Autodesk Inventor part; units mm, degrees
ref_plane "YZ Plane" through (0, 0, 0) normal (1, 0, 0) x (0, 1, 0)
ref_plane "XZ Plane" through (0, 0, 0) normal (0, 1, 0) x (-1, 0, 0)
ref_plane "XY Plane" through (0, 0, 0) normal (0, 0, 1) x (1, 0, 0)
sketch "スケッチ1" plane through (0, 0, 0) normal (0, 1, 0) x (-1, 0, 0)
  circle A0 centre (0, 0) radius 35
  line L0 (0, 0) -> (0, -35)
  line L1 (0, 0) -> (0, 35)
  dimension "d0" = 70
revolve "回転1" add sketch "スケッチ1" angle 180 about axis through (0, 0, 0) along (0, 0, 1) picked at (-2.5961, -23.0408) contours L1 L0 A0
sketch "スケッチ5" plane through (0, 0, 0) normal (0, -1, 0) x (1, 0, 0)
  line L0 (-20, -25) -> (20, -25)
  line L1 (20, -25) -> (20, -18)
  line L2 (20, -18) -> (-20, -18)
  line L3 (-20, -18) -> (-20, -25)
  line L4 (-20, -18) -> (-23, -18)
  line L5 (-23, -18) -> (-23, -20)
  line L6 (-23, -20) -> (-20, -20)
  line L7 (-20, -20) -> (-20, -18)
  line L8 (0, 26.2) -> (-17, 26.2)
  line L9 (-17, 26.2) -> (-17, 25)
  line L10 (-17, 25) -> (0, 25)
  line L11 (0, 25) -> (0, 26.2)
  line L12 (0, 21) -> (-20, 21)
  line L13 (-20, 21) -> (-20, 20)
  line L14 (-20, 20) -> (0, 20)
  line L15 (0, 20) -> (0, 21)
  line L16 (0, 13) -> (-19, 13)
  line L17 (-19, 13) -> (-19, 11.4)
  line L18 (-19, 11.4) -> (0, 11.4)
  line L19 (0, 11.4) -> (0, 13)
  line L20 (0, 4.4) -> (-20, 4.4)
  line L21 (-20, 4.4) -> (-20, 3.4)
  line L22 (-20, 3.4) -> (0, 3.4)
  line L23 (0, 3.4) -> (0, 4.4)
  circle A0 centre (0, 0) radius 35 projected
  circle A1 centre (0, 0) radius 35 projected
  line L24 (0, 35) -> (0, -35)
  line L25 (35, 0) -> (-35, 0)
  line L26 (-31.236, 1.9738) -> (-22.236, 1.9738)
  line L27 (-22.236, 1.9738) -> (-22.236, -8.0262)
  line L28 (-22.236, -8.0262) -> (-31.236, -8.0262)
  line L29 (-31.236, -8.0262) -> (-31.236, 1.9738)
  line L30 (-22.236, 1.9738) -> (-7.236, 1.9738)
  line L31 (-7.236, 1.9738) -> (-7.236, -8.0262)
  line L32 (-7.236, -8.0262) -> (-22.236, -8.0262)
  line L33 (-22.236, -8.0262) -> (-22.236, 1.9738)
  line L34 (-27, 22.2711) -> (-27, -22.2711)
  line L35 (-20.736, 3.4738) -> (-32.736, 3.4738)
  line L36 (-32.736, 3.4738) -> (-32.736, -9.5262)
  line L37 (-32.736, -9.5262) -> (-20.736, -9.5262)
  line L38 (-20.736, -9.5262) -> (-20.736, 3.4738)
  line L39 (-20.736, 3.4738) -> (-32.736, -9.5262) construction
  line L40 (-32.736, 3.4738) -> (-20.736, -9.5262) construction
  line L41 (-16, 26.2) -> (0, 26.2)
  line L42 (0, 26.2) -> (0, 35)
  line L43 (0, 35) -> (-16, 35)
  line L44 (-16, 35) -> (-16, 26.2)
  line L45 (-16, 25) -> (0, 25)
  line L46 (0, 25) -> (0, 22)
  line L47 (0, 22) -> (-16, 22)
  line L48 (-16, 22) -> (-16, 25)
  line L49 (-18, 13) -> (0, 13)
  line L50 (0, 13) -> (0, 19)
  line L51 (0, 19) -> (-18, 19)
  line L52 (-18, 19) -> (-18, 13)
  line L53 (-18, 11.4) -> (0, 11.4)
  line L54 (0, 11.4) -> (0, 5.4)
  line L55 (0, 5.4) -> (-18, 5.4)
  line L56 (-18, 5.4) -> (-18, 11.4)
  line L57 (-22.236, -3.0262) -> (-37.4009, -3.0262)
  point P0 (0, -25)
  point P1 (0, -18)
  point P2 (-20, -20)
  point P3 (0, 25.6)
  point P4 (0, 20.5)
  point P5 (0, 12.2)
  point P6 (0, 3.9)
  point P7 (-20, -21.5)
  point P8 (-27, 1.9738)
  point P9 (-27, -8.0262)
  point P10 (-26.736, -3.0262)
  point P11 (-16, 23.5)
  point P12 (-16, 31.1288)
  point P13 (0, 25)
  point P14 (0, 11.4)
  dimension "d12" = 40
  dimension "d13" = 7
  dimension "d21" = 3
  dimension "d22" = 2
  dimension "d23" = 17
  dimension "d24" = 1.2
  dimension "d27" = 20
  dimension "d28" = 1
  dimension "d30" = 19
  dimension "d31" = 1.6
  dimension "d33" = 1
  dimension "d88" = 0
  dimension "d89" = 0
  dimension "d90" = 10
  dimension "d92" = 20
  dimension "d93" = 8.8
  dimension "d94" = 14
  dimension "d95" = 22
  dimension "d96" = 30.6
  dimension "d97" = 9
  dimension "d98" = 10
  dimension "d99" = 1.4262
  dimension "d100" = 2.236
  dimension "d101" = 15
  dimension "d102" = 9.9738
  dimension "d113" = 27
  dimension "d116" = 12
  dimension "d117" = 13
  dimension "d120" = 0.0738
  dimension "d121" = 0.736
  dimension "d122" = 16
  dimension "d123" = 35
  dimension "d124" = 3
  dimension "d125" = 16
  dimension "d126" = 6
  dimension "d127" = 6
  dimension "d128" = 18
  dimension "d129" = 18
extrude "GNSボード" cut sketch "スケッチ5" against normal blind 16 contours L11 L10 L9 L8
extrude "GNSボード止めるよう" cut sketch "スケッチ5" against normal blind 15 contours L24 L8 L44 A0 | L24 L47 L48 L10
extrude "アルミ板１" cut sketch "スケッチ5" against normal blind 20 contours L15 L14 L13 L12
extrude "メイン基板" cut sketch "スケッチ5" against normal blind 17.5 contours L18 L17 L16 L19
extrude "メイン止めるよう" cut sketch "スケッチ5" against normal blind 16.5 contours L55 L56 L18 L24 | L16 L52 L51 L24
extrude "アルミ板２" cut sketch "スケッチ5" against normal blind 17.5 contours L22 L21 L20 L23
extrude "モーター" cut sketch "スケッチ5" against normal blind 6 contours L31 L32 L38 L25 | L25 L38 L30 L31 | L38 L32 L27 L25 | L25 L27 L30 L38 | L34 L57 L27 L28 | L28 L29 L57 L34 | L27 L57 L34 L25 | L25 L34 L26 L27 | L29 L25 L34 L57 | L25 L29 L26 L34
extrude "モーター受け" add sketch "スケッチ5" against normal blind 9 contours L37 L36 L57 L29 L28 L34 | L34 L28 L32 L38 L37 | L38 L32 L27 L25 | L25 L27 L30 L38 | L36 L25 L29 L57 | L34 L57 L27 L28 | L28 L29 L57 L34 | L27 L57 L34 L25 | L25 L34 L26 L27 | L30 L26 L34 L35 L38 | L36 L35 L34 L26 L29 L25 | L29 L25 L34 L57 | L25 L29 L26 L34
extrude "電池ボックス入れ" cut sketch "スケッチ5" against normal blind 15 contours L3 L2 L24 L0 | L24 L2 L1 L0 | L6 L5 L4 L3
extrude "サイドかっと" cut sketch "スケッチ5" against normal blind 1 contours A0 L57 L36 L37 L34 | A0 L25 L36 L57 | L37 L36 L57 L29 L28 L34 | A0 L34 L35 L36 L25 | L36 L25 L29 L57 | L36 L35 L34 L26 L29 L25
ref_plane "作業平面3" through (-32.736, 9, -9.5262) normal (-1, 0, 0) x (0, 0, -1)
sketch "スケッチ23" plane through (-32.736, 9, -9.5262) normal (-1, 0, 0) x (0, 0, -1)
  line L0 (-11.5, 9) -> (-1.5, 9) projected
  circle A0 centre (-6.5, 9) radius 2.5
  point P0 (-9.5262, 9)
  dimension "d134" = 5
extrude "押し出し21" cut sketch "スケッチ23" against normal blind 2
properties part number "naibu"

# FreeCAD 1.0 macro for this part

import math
import FreeCAD as App
import Part
import Sketcher
from FreeCAD import Vector


def add_polygon(sketch, points):
    """Adds a closed chain of lines whose ends are joined by coincident constraints."""
    first, n = sketch.GeometryCount, len(points)
    for a, b in zip(points, points[1:] + points[:1]):
        sketch.addGeometry(Part.LineSegment(App.Vector(*a, 0), App.Vector(*b, 0)), False)
    for i in range(n):
        sketch.addConstraint(Sketcher.Constraint("Coincident", first + i, 2, first + (i + 1) % n, 1))

doc = App.newDocument("Part")
body = doc.addObject("PartDesign::Body", "Body")

sketch1 = body.newObject("Sketcher::SketchObject", "Sketch")
sketch1.AttachmentSupport = (doc.getObject("XZ_Plane"), [""])
sketch1.MapMode = "FlatFace"
sketch1.addGeometry([
    Part.LineSegment(Vector(0, -35, 0), Vector(0, 35, 0)),
    Part.ArcOfCircle(Part.Circle(Vector(0, 0, 0), Vector(0, 0, 1), 35), math.radians(-90), math.radians(90)),
], False)
sketch1.addConstraint([
    Sketcher.Constraint("Coincident", 0, 1, 1, 1),
    Sketcher.Constraint("Coincident", 1, 2, 0, 2),
    Sketcher.Constraint("Vertical", 0),
    Sketcher.Constraint("Coincident", 1, 3, -1, 1),
    Sketcher.Constraint("PointOnObject", 0, 1, -2),
    Sketcher.Constraint("Radius", 1, 35.0),
])
revolution = body.newObject("PartDesign::Revolution", "Revolution")
revolution.Profile = sketch1
revolution.ReferenceAxis = (sketch1, ["V_Axis"])
revolution.Angle = 180

sketch2 = body.newObject("Sketcher::SketchObject", "Sketch001")
sketch2.AttachmentSupport = (doc.getObject("XZ_Plane"), [""])
sketch2.MapMode = "FlatFace"
add_polygon(sketch2, [(0, 25), (0, 26.2), (-17, 26.2), (-17, 25)])
sketch2.addConstraint([
    Sketcher.Constraint("Vertical", 0),
    Sketcher.Constraint("Horizontal", 1),
    Sketcher.Constraint("Vertical", 2),
    Sketcher.Constraint("Horizontal", 3),
    Sketcher.Constraint("PointOnObject", 0, 2, -2),
    Sketcher.Constraint("DistanceX", 1, 2, 1, 1, 17.0),
    Sketcher.Constraint("DistanceY", 0, 1, 0, 2, 1.2),
    Sketcher.Constraint("DistanceY", -1, 1, 2, 2, 25.0),
])
pocket1 = body.newObject("PartDesign::Pocket", "Pocket")
pocket1.Profile = sketch2
pocket1.Length = 16

sketch3 = body.newObject("Sketcher::SketchObject", "Sketch002")
sketch3.AttachmentSupport = (doc.getObject("XZ_Plane"), [""])
sketch3.MapMode = "FlatFace"
sketch3.addGeometry(Part.LineSegment(Vector(0, 26.2, 0), Vector(0, 35, 0)), False)
sketch3.addGeometry(Part.ArcOfCircle(Part.Circle(Vector(0, 0, 0), Vector(0, 0, 1), 35), math.radians(90), math.radians(117)), False)
sketch3.addGeometry(Part.LineSegment(Vector(-16, 31.1, 0), Vector(-16, 26.2, 0)), False)
sketch3.addGeometry(Part.LineSegment(Vector(-16, 26.2, 0), Vector(0, 26.2, 0)), False)
add_polygon(sketch3, [(0, 22), (0, 25), (-16, 25), (-16, 22)])
sketch3.addConstraint([
    Sketcher.Constraint("Coincident", 0, 2, 1, 1),
    Sketcher.Constraint("Coincident", 1, 2, 2, 1),
    Sketcher.Constraint("Coincident", 2, 2, 3, 1),
    Sketcher.Constraint("Coincident", 3, 2, 0, 1),
    Sketcher.Constraint("Vertical", 0),
    Sketcher.Constraint("Vertical", 2),
    Sketcher.Constraint("Horizontal", 3),
    Sketcher.Constraint("Vertical", 4),
    Sketcher.Constraint("Horizontal", 5),
    Sketcher.Constraint("Vertical", 6),
    Sketcher.Constraint("Horizontal", 7),
    Sketcher.Constraint("Coincident", 1, 3, -1, 1),
    Sketcher.Constraint("PointOnObject", 0, 2, -2),
    Sketcher.Constraint("PointOnObject", 4, 2, -2),
    Sketcher.Constraint("Vertical", 2, 2, 5, 2),
    Sketcher.Constraint("Radius", 1, 35.0),
    Sketcher.Constraint("DistanceX", 3, 1, 3, 2, 16.0),
    Sketcher.Constraint("DistanceY", 4, 1, 4, 2, 3.0),
    Sketcher.Constraint("DistanceY", 0, 1, 0, 2, 8.8),
    Sketcher.Constraint("DistanceY", -1, 1, 6, 2, 22.0),
])
pocket2 = body.newObject("PartDesign::Pocket", "Pocket001")
pocket2.Profile = sketch3
pocket2.Length = 15

sketch4 = body.newObject("Sketcher::SketchObject", "Sketch003")
sketch4.AttachmentSupport = (doc.getObject("XZ_Plane"), [""])
sketch4.MapMode = "FlatFace"
add_polygon(sketch4, [(0, 20), (0, 21), (-20, 21), (-20, 20)])
sketch4.addConstraint([
    Sketcher.Constraint("Vertical", 0),
    Sketcher.Constraint("Horizontal", 1),
    Sketcher.Constraint("Vertical", 2),
    Sketcher.Constraint("Horizontal", 3),
    Sketcher.Constraint("PointOnObject", 0, 2, -2),
    Sketcher.Constraint("DistanceX", 1, 2, 1, 1, 20.0),
    Sketcher.Constraint("DistanceY", 0, 1, 0, 2, 1.0),
    Sketcher.Constraint("DistanceY", -1, 1, 2, 2, 20.0),
])
pocket3 = body.newObject("PartDesign::Pocket", "Pocket002")
pocket3.Profile = sketch4
pocket3.Length = 20

sketch5 = body.newObject("Sketcher::SketchObject", "Sketch004")
sketch5.AttachmentSupport = (doc.getObject("XZ_Plane"), [""])
sketch5.MapMode = "FlatFace"
add_polygon(sketch5, [(-19, 11.4), (0, 11.4), (0, 13), (-19, 13)])
sketch5.addConstraint([
    Sketcher.Constraint("Horizontal", 0),
    Sketcher.Constraint("Vertical", 1),
    Sketcher.Constraint("Horizontal", 2),
    Sketcher.Constraint("Vertical", 3),
    Sketcher.Constraint("PointOnObject", 0, 2, -2),
    Sketcher.Constraint("DistanceX", 0, 1, 0, 2, 19.0),
    Sketcher.Constraint("DistanceY", 1, 1, 1, 2, 1.6),
    Sketcher.Constraint("DistanceY", -1, 1, 1, 2, 13.0),
])
pocket4 = body.newObject("PartDesign::Pocket", "Pocket003")
pocket4.Profile = sketch5
pocket4.Length = 17.5

sketch6 = body.newObject("Sketcher::SketchObject", "Sketch005")
sketch6.AttachmentSupport = (doc.getObject("XZ_Plane"), [""])
sketch6.MapMode = "FlatFace"
add_polygon(sketch6, [(-18, 5), (0, 5), (0, 11), (-18, 11)])
add_polygon(sketch6, [(-18, 13), (0, 13), (0, 19), (-18, 19)])
sketch6.addConstraint([
    Sketcher.Constraint("Horizontal", 0),
    Sketcher.Constraint("Vertical", 1),
    Sketcher.Constraint("Horizontal", 2),
    Sketcher.Constraint("Vertical", 3),
    Sketcher.Constraint("Horizontal", 4),
    Sketcher.Constraint("Vertical", 5),
    Sketcher.Constraint("Horizontal", 6),
    Sketcher.Constraint("Vertical", 7),
    Sketcher.Constraint("PointOnObject", 0, 2, -2),
    Sketcher.Constraint("PointOnObject", 4, 2, -2),
    Sketcher.Constraint("Vertical", 3, 2, 6, 2),
    Sketcher.Constraint("Equal", 3, 5),
    Sketcher.Constraint("DistanceX", 0, 1, 0, 2, 18.0),
    Sketcher.Constraint("DistanceY", 1, 1, 1, 2, 6.0),
    Sketcher.Constraint("DistanceY", -1, 1, 4, 2, 13.0),
    Sketcher.Constraint("DistanceY", 1, 2, 4, 2, 1.6),
])
pocket5 = body.newObject("PartDesign::Pocket", "Pocket004")
pocket5.Profile = sketch6
pocket5.Length = 16.5

sketch7 = body.newObject("Sketcher::SketchObject", "Sketch006")
sketch7.AttachmentSupport = (doc.getObject("XZ_Plane"), [""])
sketch7.MapMode = "FlatFace"
add_polygon(sketch7, [(-20, 3.4), (0, 3.4), (0, 4.4), (-20, 4.4)])
sketch7.addConstraint([
    Sketcher.Constraint("Horizontal", 0),
    Sketcher.Constraint("Vertical", 1),
    Sketcher.Constraint("Horizontal", 2),
    Sketcher.Constraint("Vertical", 3),
    Sketcher.Constraint("PointOnObject", 0, 2, -2),
    Sketcher.Constraint("DistanceX", 0, 1, 0, 2, 20.0),
    Sketcher.Constraint("DistanceY", 1, 1, 1, 2, 1.0),
    Sketcher.Constraint("DistanceY", -1, 1, 0, 2, 3.4),
])
pocket6 = body.newObject("PartDesign::Pocket", "Pocket005")
pocket6.Profile = sketch7
pocket6.Length = 17.5

sketch8 = body.newObject("Sketcher::SketchObject", "Sketch007")
sketch8.AttachmentSupport = (doc.getObject("XZ_Plane"), [""])
sketch8.MapMode = "FlatFace"
add_polygon(sketch8, [(-7, -8), (-7, 2), (-31, 2), (-31, -8)])
sketch8.addConstraint([
    Sketcher.Constraint("Vertical", 0),
    Sketcher.Constraint("Horizontal", 1),
    Sketcher.Constraint("Vertical", 2),
    Sketcher.Constraint("Horizontal", 3),
    Sketcher.Constraint("DistanceY", 0, 1, 0, 2, 10.0),
    Sketcher.Constraint("DistanceX", 1, 2, 1, 1, 24.0),
    Sketcher.Constraint("DistanceX", 0, 2, -1, 1, 7.236),
    Sketcher.Constraint("DistanceY", -1, 1, 0, 2, 1.9738),
])
pocket7 = body.newObject("PartDesign::Pocket", "Pocket006")
pocket7.Profile = sketch8
pocket7.Length = 6

sketch9 = body.newObject("Sketcher::SketchObject", "Sketch008")
sketch9.AttachmentSupport = (doc.getObject("XZ_Plane"), [""])
sketch9.MapMode = "FlatFace"
add_polygon(sketch9, [(-33, -10), (-21, -10), (-21, 3), (-33, 3)])
sketch9.addConstraint([
    Sketcher.Constraint("Horizontal", 0),
    Sketcher.Constraint("Vertical", 1),
    Sketcher.Constraint("Horizontal", 2),
    Sketcher.Constraint("Vertical", 3),
    Sketcher.Constraint("DistanceX", 0, 1, 0, 2, 12.0),
    Sketcher.Constraint("DistanceY", 1, 1, 1, 2, 13.0),
    Sketcher.Constraint("DistanceX", 0, 2, -1, 1, 20.736),
    Sketcher.Constraint("DistanceY", 0, 2, -1, 1, 9.5262),
])
pad1 = body.newObject("PartDesign::Pad", "Pad")
pad1.Profile = sketch9
pad1.Length = 9
pad1.Reversed = True

sketch10 = body.newObject("Sketcher::SketchObject", "Sketch009")
sketch10.AttachmentSupport = (doc.getObject("XZ_Plane"), [""])
sketch10.MapMode = "FlatFace"
add_polygon(sketch10, [(-20, -20), (-20, -25), (20, -25), (20, -18), (-23, -18), (-23, -20)])
sketch10.addConstraint([
    Sketcher.Constraint("Vertical", 0),
    Sketcher.Constraint("Horizontal", 1),
    Sketcher.Constraint("Vertical", 2),
    Sketcher.Constraint("Horizontal", 3),
    Sketcher.Constraint("Vertical", 4),
    Sketcher.Constraint("Horizontal", 5),
    Sketcher.Constraint("DistanceX", 1, 1, 1, 2, 40.0),
    Sketcher.Constraint("DistanceX", 5, 1, 5, 2, 3.0),
    Sketcher.Constraint("DistanceY", 2, 1, 2, 2, 7.0),
    Sketcher.Constraint("DistanceY", 4, 2, 4, 1, 2.0),
    Sketcher.Constraint("DistanceX", 0, 2, -1, 1, 20.0),
    Sketcher.Constraint("DistanceY", 2, 2, -1, 1, 18.0),
])
pocket8 = body.newObject("PartDesign::Pocket", "Pocket007")
pocket8.Profile = sketch10
pocket8.Length = 15

sketch11 = body.newObject("Sketcher::SketchObject", "Sketch010")
sketch11.AttachmentSupport = (doc.getObject("XZ_Plane"), [""])
sketch11.MapMode = "FlatFace"
sketch11.addGeometry([
    Part.LineSegment(Vector(-27, -22.3, 0), Vector(-27, -8, 0)),
    Part.LineSegment(Vector(-27, -8, 0), Vector(-31.2, -8, 0)),
    Part.LineSegment(Vector(-31.2, -8, 0), Vector(-31.2, 2, 0)),
    Part.LineSegment(Vector(-31.2, 2, 0), Vector(-27, 2, 0)),
    Part.LineSegment(Vector(-27, 2, 0), Vector(-27, 22.3, 0)),
    Part.ArcOfCircle(Part.Circle(Vector(0, 0, 0), Vector(0, 0, 1), 35), math.radians(140), math.radians(220)),
], False)
sketch11.addConstraint([
    Sketcher.Constraint("Coincident", 0, 2, 1, 1),
    Sketcher.Constraint("Coincident", 1, 2, 2, 1),
    Sketcher.Constraint("Coincident", 2, 2, 3, 1),
    Sketcher.Constraint("Coincident", 3, 2, 4, 1),
    Sketcher.Constraint("Coincident", 4, 2, 5, 1),
    Sketcher.Constraint("Coincident", 5, 2, 0, 1),
    Sketcher.Constraint("Vertical", 0),
    Sketcher.Constraint("Horizontal", 1),
    Sketcher.Constraint("Vertical", 2),
    Sketcher.Constraint("Horizontal", 3),
    Sketcher.Constraint("Vertical", 4),
    Sketcher.Constraint("Coincident", 5, 3, -1, 1),
    Sketcher.Constraint("Vertical", 0, 2, 3, 2),
    Sketcher.Constraint("Radius", 5, 35.0),
    Sketcher.Constraint("DistanceY", 2, 1, 2, 2, 10.0),
    Sketcher.Constraint("DistanceX", 0, 2, -1, 1, 27.0),
    Sketcher.Constraint("DistanceX", 1, 2, 1, 1, 4.236),
    Sketcher.Constraint("DistanceY", 0, 1, 0, 2, 14.245),
])
pocket9 = body.newObject("PartDesign::Pocket", "Pocket008")
pocket9.Profile = sketch11
pocket9.Length = 1

sketch12 = body.newObject("Sketcher::SketchObject", "Sketch011")
sketch12.AttachmentSupport = (doc.getObject("YZ_Plane"), [""])
sketch12.MapMode = "FlatFace"
sketch12.AttachmentOffset = App.Placement(Vector(0, 0, -32.736), App.Rotation())
sketch12.addGeometry(Part.Circle(Vector(0, -3, 0), Vector(0, 0, 1), 2.5), False)
sketch12.addConstraint([
    Sketcher.Constraint("PointOnObject", 0, 3, -2),
    Sketcher.Constraint("Diameter", 0, 5.0),
    Sketcher.Constraint("DistanceY", 0, 3, -1, 1, 3.0262),
])
pocket10 = body.newObject("PartDesign::Pocket", "Pocket009")
pocket10.Profile = sketch12
pocket10.Length = 2
pocket10.Reversed = True

doc.recompute()
